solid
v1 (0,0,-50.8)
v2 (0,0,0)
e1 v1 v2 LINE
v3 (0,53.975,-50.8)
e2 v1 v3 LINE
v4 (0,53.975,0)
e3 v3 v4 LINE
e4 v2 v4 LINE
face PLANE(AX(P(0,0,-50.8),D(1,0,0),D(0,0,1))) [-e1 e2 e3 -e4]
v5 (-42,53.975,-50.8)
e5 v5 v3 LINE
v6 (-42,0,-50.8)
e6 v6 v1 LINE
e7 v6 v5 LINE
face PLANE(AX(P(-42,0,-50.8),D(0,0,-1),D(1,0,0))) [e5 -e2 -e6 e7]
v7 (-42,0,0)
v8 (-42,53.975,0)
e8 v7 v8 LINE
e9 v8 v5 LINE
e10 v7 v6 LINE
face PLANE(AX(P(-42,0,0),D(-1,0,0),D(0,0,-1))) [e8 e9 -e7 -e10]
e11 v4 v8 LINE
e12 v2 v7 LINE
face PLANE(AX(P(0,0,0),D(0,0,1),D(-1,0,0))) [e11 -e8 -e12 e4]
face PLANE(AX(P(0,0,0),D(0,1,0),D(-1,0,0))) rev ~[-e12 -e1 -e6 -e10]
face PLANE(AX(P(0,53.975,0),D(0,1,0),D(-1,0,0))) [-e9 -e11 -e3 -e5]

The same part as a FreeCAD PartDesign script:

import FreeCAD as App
import Part
import Sketcher

V = App.Vector
Q = App.Units.Quantity

doc = App.newDocument("Part")
body = doc.addObject("PartDesign::Body", "Body")

# Sketch on XZ plane
sketch1 = body.newObject("Sketcher::SketchObject", "Sketch")
sketch1.AttachmentSupport = (doc.getObject("XZ_Plane"), [""])
sketch1.MapMode = "FlatFace"
sketch1.addGeometry([
    Part.LineSegment(V(-42, 0, 0), V(0, 0, 0)),
    Part.LineSegment(V(0, 0, 0), V(0, -51, 0)),
    Part.LineSegment(V(0, -51, 0), V(-42, -51, 0)),
    Part.LineSegment(V(-42, -51, 0), V(-42, 0, 0)),
], False)
sketch1.addConstraint([
    Sketcher.Constraint("Coincident", 0, 2, 1, 1),
    Sketcher.Constraint("Coincident", 1, 2, 2, 1),
    Sketcher.Constraint("Coincident", 2, 2, 3, 1),
    Sketcher.Constraint("Coincident", 3, 2, 0, 1),
    Sketcher.Constraint("Horizontal", 0),
    Sketcher.Constraint("Vertical", 1),
    Sketcher.Constraint("Horizontal", 2),
    Sketcher.Constraint("Vertical", 3),
    Sketcher.Constraint("Coincident", 0, 2, -1, 1),
    Sketcher.Constraint("DistanceY", 1, 2, 1, 1, Q("2 in")),
    Sketcher.Constraint("DistanceX", 0, 1, 0, 2, Q("42 mm")),
])
pad1 = body.newObject("PartDesign::Pad", "Pad")
pad1.Profile = sketch1
pad1.Length = Q("2.125 in")
pad1.Reversed = True

doc.recompute()
